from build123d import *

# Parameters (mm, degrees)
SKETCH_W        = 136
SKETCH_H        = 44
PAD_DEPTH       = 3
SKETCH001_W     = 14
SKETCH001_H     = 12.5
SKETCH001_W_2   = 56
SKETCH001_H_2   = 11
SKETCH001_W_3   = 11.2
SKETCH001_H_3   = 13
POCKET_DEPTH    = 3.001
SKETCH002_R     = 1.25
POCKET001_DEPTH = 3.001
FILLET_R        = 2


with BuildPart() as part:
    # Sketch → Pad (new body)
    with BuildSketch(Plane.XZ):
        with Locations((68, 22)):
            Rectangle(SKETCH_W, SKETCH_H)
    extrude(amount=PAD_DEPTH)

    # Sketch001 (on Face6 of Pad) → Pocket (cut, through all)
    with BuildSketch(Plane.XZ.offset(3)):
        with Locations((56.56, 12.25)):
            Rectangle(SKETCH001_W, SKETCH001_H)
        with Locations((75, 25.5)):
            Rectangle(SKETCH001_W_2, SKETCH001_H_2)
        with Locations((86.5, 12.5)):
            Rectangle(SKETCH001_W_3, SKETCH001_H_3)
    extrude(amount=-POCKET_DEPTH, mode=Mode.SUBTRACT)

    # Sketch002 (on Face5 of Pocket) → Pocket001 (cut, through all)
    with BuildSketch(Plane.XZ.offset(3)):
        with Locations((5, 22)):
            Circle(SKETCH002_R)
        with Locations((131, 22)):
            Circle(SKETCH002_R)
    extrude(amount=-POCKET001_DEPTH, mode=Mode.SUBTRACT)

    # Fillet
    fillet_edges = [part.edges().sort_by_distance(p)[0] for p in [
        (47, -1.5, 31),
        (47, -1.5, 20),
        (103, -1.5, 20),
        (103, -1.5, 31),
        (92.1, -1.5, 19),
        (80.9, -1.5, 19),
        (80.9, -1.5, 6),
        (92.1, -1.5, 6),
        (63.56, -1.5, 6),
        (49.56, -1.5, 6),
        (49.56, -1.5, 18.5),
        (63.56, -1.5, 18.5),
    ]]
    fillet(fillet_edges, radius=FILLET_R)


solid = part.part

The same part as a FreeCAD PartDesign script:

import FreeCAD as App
import Part
import Sketcher

V = App.Vector
Q = App.Units.Quantity


def edges_at(feature, points):
    """Names of the edges that pass closest to the given points."""
    edges = feature.Shape.Edges
    near = lambda p: min(range(len(edges)), key=lambda i: edges[i].distToShape(Part.Vertex(*p))[0])
    return sorted({f"Edge{near(p) + 1}" for p in points})


def add_polygon(sketch, points):
    """Adds a closed chain of lines whose ends are joined by coincident constraints."""
    first, n = sketch.GeometryCount, len(points)
    for a, b in zip(points, points[1:] + points[:1]):
        sketch.addGeometry(Part.LineSegment(App.Vector(*a, 0), App.Vector(*b, 0)), False)
    for i in range(n):
        sketch.addConstraint(Sketcher.Constraint("Coincident", first + i, 2, first + (i + 1) % n, 1))

doc = App.newDocument("Part")
body = doc.addObject("PartDesign::Body", "Body")

sketch1 = body.newObject("Sketcher::SketchObject", "Sketch")
sketch1.AttachmentSupport = (doc.getObject("XZ_Plane"), [""])
sketch1.MapMode = "FlatFace"
add_polygon(sketch1, [(0, 44), (0, 0), (136, 0), (136, 44)])
sketch1.addConstraint(Sketcher.Constraint("Vertical", 0))
sketch1.addConstraint(Sketcher.Constraint("Horizontal", 1))
sketch1.addConstraint(Sketcher.Constraint("Vertical", 2))
sketch1.addConstraint(Sketcher.Constraint("Horizontal", 3))
sketch1.addConstraint(Sketcher.Constraint("Coincident", 0, 2, -1, 1))
sketch1.addConstraint(Sketcher.Constraint("DistanceX", 1, 1, 1, 2, Q("136 mm")))
sketch1.addConstraint(Sketcher.Constraint("DistanceY", 0, 2, 0, 1, Q("44 mm")))
pad1 = body.newObject("PartDesign::Pad", "Pad")
pad1.Profile = sketch1
pad1.Length = 3

sketch2 = body.newObject("Sketcher::SketchObject", "Sketch001")
sketch2.AttachmentSupport = (doc.getObject("XZ_Plane"), [""])
sketch2.MapMode = "FlatFace"
sketch2.AttachmentOffset = App.Placement(V(0, 0, 3), App.Rotation())
add_polygon(sketch2, [(49.56, 18.5), (49.56, 6), (63.56, 6), (63.56, 18.5)])
add_polygon(sketch2, [(47, 31), (47, 20), (103, 20), (103, 31)])
add_polygon(sketch2, [(80.9, 19), (80.9, 6), (92.1, 6), (92.1, 19)])
sketch2.addConstraint(Sketcher.Constraint("Vertical", 0))
sketch2.addConstraint(Sketcher.Constraint("Horizontal", 1))
sketch2.addConstraint(Sketcher.Constraint("Vertical", 2))
sketch2.addConstraint(Sketcher.Constraint("Horizontal", 3))
sketch2.addConstraint(Sketcher.Constraint("Vertical", 4))
sketch2.addConstraint(Sketcher.Constraint("Horizontal", 5))
sketch2.addConstraint(Sketcher.Constraint("Vertical", 6))
sketch2.addConstraint(Sketcher.Constraint("Horizontal", 7))
sketch2.addConstraint(Sketcher.Constraint("Vertical", 8))
sketch2.addConstraint(Sketcher.Constraint("Horizontal", 9))
sketch2.addConstraint(Sketcher.Constraint("Vertical", 10))
sketch2.addConstraint(Sketcher.Constraint("Horizontal", 11))
sketch2.addConstraint(Sketcher.Constraint("Horizontal", 1, 2, 8, 2))
sketch2.addConstraint(Sketcher.Constraint("DistanceX", 1, 1, 1, 2, Q("14 mm")))
sketch2.addConstraint(Sketcher.Constraint("DistanceX", 5, 1, 5, 2, Q("56 mm")))
sketch2.addConstraint(Sketcher.Constraint("DistanceY", 4, 2, 4, 1, Q("11 mm")))
sketch2.addConstraint(Sketcher.Constraint("DistanceY", 8, 2, 8, 1, Q("13 mm")))
sketch2.addConstraint(Sketcher.Constraint("DistanceX", 9, 1, 9, 2, Q("11.2 mm")))
sketch2.addConstraint(Sketcher.Constraint("DistanceY", 0, 2, 0, 1, Q("12.5 mm")))
sketch2.addConstraint(Sketcher.Constraint("DistanceY", -1, 1, 0, 2, Q("6 mm")))
sketch2.addConstraint(Sketcher.Constraint("DistanceX", -1, 1, 4, 2, Q("47 mm")))
sketch2.addConstraint(Sketcher.Constraint("DistanceY", -1, 1, 4, 2, Q("20 mm")))
sketch2.addConstraint(Sketcher.Constraint("DistanceX", -1, 1, 8, 2, Q("80.9 mm")))
sketch2.addConstraint(Sketcher.Constraint("DistanceX", -1, 1, 0, 2, Q("49.56 mm")))
pocket1 = body.newObject("PartDesign::Pocket", "Pocket")
pocket1.Profile = sketch2
pocket1.Type = "ThroughAll"

sketch3 = body.newObject("Sketcher::SketchObject", "Sketch002")
sketch3.AttachmentSupport = (doc.getObject("XZ_Plane"), [""])
sketch3.MapMode = "FlatFace"
sketch3.AttachmentOffset = App.Placement(V(0, 0, 3), App.Rotation())
sketch3.addGeometry(Part.Circle(V(5, 22, 0), V(0, 0, 1), 1.25), False)
sketch3.addGeometry(Part.Circle(V(131, 22, 0), V(0, 0, 1), 1.25), False)
sketch3.addConstraint(Sketcher.Constraint("Equal", 0, 1))
sketch3.addConstraint(Sketcher.Constraint("Horizontal", 0, 3, 1, 3))
sketch3.addConstraint(Sketcher.Constraint("Diameter", 0, Q("2.5 mm")))
sketch3.addConstraint(Sketcher.Constraint("DistanceX", -1, 1, 0, 3, Q("5 mm")))
sketch3.addConstraint(Sketcher.Constraint("DistanceY", -1, 1, 0, 3, Q("22 mm")))
sketch3.addConstraint(Sketcher.Constraint("DistanceX", -1, 1, 1, 3, Q("131 mm")))
pocket2 = body.newObject("PartDesign::Pocket", "Pocket001")
pocket2.Profile = sketch3
pocket2.Type = "ThroughAll"
doc.recompute()

fillet = body.newObject("PartDesign::Fillet", "Fillet")
fillet.Base = (pocket2, edges_at(pocket2, [
    (47, -1.5, 31),
    (47, -1.5, 20),
    (103, -1.5, 20),
    (103, -1.5, 31),
    (92.1, -1.5, 19),
    (80.9, -1.5, 19),
    (80.9, -1.5, 6),
    (92.1, -1.5, 6),
    (63.56, -1.5, 6),
    (49.56, -1.5, 6),
    (49.56, -1.5, 18.5),
    (63.56, -1.5, 18.5),
]))
fillet.Radius = 2

doc.recompute()
